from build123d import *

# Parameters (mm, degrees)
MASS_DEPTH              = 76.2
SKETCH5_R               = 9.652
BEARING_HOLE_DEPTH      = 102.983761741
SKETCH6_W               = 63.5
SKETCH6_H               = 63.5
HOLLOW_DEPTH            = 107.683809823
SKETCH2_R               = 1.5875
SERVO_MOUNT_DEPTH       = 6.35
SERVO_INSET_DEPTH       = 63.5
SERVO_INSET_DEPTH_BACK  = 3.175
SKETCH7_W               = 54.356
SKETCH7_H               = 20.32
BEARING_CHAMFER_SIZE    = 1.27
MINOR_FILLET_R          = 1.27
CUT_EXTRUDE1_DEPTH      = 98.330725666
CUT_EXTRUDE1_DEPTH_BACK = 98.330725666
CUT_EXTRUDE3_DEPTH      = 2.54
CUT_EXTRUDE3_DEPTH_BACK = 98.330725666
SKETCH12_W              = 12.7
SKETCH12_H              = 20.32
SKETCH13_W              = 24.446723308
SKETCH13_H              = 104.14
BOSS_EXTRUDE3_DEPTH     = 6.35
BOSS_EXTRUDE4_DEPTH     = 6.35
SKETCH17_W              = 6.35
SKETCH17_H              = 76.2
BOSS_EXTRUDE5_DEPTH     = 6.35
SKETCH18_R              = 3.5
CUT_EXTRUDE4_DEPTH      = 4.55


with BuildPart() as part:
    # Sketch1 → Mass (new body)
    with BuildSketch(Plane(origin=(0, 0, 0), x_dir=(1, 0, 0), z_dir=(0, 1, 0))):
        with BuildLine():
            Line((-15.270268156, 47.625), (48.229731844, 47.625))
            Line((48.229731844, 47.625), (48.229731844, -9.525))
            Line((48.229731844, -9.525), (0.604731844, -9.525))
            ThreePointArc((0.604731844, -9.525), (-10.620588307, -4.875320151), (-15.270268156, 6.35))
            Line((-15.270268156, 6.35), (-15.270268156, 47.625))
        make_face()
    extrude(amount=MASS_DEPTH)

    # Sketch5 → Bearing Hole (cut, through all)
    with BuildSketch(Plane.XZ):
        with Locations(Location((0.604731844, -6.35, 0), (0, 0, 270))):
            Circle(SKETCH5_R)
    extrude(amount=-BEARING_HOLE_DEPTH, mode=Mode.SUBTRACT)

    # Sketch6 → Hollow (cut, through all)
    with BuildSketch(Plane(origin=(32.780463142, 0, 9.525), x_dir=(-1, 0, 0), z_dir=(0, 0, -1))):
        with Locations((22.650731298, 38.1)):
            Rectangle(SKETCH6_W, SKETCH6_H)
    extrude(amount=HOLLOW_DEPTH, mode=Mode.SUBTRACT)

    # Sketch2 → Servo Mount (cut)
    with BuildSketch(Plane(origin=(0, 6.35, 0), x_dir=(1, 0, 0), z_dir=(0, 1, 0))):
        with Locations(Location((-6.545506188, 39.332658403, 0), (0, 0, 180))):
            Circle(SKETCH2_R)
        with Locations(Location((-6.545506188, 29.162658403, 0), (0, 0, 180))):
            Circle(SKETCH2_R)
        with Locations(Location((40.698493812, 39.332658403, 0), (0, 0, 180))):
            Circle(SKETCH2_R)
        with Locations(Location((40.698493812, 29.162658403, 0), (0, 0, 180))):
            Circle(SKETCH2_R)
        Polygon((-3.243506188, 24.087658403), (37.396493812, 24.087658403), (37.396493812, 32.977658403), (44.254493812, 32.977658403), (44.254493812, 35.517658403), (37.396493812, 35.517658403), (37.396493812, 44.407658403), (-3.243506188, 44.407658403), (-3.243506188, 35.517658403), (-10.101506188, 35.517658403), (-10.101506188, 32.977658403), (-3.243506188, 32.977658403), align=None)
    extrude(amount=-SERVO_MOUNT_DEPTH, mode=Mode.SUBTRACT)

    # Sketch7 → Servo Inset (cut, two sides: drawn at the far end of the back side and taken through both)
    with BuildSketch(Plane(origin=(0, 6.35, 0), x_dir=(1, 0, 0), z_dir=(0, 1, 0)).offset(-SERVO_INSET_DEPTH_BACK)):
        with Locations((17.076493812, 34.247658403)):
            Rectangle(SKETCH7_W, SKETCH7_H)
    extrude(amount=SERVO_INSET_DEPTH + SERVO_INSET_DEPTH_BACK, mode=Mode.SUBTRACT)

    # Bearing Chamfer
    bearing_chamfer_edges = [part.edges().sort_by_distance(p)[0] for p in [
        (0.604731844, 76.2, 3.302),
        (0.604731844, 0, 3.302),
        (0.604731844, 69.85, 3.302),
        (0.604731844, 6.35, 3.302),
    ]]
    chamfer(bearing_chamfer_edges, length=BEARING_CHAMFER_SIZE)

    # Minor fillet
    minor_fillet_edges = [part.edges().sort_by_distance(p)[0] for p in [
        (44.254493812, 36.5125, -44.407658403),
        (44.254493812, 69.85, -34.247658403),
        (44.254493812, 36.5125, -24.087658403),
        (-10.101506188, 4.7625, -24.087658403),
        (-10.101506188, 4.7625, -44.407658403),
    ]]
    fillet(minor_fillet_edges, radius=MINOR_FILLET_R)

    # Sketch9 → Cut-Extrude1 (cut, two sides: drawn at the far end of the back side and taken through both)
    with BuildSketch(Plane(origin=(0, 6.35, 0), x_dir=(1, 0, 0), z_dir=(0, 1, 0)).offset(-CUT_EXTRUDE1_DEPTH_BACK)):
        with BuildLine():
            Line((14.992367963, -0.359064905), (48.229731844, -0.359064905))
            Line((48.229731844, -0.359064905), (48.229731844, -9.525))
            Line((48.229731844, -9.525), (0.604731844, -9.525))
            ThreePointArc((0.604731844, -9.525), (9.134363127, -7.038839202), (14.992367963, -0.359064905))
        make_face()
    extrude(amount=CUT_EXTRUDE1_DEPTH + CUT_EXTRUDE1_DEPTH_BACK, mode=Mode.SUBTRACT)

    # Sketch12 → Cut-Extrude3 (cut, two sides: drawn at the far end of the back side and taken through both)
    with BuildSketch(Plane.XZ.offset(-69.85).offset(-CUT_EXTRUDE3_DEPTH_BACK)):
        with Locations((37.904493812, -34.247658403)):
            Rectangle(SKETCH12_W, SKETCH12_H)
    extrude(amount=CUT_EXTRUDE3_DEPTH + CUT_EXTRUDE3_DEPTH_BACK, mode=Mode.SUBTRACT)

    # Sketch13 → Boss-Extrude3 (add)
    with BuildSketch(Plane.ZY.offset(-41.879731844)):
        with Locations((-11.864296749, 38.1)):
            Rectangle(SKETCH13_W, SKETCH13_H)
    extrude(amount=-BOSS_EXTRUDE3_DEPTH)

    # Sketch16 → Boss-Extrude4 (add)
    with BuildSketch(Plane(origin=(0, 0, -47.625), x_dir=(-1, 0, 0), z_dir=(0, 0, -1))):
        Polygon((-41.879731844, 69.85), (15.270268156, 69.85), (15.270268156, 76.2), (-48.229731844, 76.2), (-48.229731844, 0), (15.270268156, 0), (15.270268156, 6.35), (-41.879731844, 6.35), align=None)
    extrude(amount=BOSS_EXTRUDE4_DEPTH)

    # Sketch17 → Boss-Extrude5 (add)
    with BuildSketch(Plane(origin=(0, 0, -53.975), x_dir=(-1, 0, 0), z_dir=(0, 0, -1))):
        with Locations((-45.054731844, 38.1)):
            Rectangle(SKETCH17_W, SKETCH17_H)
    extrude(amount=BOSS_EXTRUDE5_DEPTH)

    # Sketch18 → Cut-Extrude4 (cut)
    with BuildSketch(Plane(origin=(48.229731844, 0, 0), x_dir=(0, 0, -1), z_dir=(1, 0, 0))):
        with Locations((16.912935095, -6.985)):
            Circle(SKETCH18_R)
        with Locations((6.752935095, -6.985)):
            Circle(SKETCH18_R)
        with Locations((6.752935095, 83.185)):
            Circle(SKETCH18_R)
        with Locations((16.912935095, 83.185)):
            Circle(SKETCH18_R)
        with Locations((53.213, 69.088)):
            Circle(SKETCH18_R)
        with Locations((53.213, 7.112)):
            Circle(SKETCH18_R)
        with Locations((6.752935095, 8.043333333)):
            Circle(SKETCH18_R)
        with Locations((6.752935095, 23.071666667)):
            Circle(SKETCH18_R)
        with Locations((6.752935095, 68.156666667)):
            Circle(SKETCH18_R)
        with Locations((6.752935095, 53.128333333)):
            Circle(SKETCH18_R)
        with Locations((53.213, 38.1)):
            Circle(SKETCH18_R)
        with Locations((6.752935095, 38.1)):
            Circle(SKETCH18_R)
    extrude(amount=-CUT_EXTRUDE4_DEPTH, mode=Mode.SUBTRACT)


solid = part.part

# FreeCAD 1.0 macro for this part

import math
import FreeCAD as App
import Part
import Sketcher
from FreeCAD import Vector
Q = App.Units.Quantity


def edges_at(feature, points):
    """Names of the edges that pass closest to the given points."""
    edges = feature.Shape.Edges
    near = lambda p: min(range(len(edges)), key=lambda i: edges[i].distToShape(Part.Vertex(*p))[0])
    return sorted({f"Edge{near(p) + 1}" for p in points})


def add_polygon(sketch, points):
    """Adds a closed chain of lines whose ends are joined by coincident constraints."""
    first, n = sketch.GeometryCount, len(points)
    for a, b in zip(points, points[1:] + points[:1]):
        sketch.addGeometry(Part.LineSegment(App.Vector(*a, 0), App.Vector(*b, 0)), False)
    for i in range(n):
        sketch.addConstraint(Sketcher.Constraint("Coincident", first + i, 2, first + (i + 1) % n, 1))

doc = App.newDocument("Part")
body = doc.addObject("PartDesign::Body", "Body")

# Sketch on XZ plane
sketch1 = body.newObject("Sketcher::SketchObject", "Sketch")
sketch1.AttachmentSupport = (doc.getObject("XZ_Plane"), [""])
sketch1.MapMode = "FlatFace"
sketch1.addGeometry(Part.LineSegment(Vector(48, -48, 0), Vector(-15, -48, 0)), False)
sketch1.addGeometry(Part.LineSegment(Vector(-15, -48, 0), Vector(-15, -6, 0)), False)
sketch1.addGeometry(Part.ArcOfCircle(Part.Circle(Vector(1, -6, 0), Vector(0, 0, 1), 16), math.radians(90), math.radians(180)), False)
sketch1.addGeometry(Part.LineSegment(Vector(1, 10, 0), Vector(48, 10, 0)), False)
sketch1.addGeometry(Part.LineSegment(Vector(48, 10, 0), Vector(48, -48, 0)), False)
sketch1.addConstraint(Sketcher.Constraint("Coincident", 0, 2, 1, 1))
sketch1.addConstraint(Sketcher.Constraint("Tangent", 1, 2, 2, 2))
sketch1.addConstraint(Sketcher.Constraint("Tangent", 2, 1, 3, 1))
sketch1.addConstraint(Sketcher.Constraint("Coincident", 3, 2, 4, 1))
sketch1.addConstraint(Sketcher.Constraint("Coincident", 4, 2, 0, 1))
sketch1.addConstraint(Sketcher.Constraint("Horizontal", 0))
sketch1.addConstraint(Sketcher.Constraint("Vertical", 1))
sketch1.addConstraint(Sketcher.Constraint("Horizontal", 3))
sketch1.addConstraint(Sketcher.Constraint("Vertical", 4))
sketch1.addConstraint(Sketcher.Constraint("DistanceX", 0, 2, 0, 1, Q("2.5 in")))
sketch1.addConstraint(Sketcher.Constraint("Radius", 2, Q("0.625 in")))
sketch1.addConstraint(Sketcher.Constraint("DistanceY", 4, 2, 4, 1, Q("2.25 in")))
sketch1.addConstraint(Sketcher.Constraint("DistanceY", 2, 3, -1, 1, Q("0.25 in")))
sketch1.addConstraint(Sketcher.Constraint("DistanceX", -1, 1, 2, 3, 0.604732))
pad1 = body.newObject("PartDesign::Pad", "Pad")
pad1.Profile = sketch1
pad1.Length = Q("3 in")
pad1.Reversed = True

# Sketch on XZ plane
sketch2 = body.newObject("Sketcher::SketchObject", "Sketch001")
sketch2.AttachmentSupport = (doc.getObject("XZ_Plane"), [""])
sketch2.MapMode = "FlatFace"
sketch2.addGeometry(Part.Circle(Vector(1, -6, 0), Vector(0, 0, 1), 10), False)
sketch2.addConstraint(Sketcher.Constraint("Diameter", 0, Q("0.76 in")))
sketch2.addConstraint(Sketcher.Constraint("DistanceY", 0, 3, -1, 1, Q("0.25 in")))
sketch2.addConstraint(Sketcher.Constraint("DistanceX", -1, 1, 0, 3, 0.604732))
pocket1 = body.newObject("PartDesign::Pocket", "Pocket")
pocket1.Profile = sketch2
pocket1.Type = "ThroughAll"

# Sketch on XY plane
sketch3 = body.newObject("Sketcher::SketchObject", "Sketch002")
sketch3.AttachmentSupport = (doc.getObject("XY_Plane"), [""])
sketch3.MapMode = "FlatFace"
sketch3.AttachmentOffset = App.Placement(Vector(0, 0, 0.375 * 25.4), App.Rotation())
add_polygon(sketch3, [(42, 70), (42, 6), (-22, 6), (-22, 70)])  # lines 0-3
sketch3.addConstraint(Sketcher.Constraint("Vertical", 0))
sketch3.addConstraint(Sketcher.Constraint("Horizontal", 1))
sketch3.addConstraint(Sketcher.Constraint("Vertical", 2))
sketch3.addConstraint(Sketcher.Constraint("Horizontal", 3))
sketch3.addConstraint(Sketcher.Constraint("Equal", 3, 0))
sketch3.addConstraint(Sketcher.Constraint("DistanceX", 1, 2, 1, 1, Q("2.5 in")))
sketch3.addConstraint(Sketcher.Constraint("DistanceY", -1, 1, 0, 2, Q("0.25 in")))
sketch3.addConstraint(Sketcher.Constraint("DistanceX", -1, 1, 0, 2, 41.879732))
pocket2 = body.newObject("PartDesign::Pocket", "Pocket001")
pocket2.Profile = sketch3
pocket2.Type = "ThroughAll"

# Sketch on XZ plane
sketch4 = body.newObject("Sketcher::SketchObject", "Sketch003")
sketch4.AttachmentSupport = (doc.getObject("XZ_Plane"), [""])
sketch4.MapMode = "FlatFace"
sketch4.AttachmentOffset = App.Placement(Vector(0, 0, -0.25 * 25.4), App.Rotation())
sketch4.addGeometry(Part.Circle(Vector(-6.5, -39.3, 0), Vector(0, 0, 1), 1.6), False)  # 0
sketch4.addGeometry(Part.Circle(Vector(-6.5, -29.2, 0), Vector(0, 0, 1), 1.6), False)  # 1
sketch4.addGeometry(Part.Circle(Vector(40.7, -39.3, 0), Vector(0, 0, 1), 1.6), False)  # 2
sketch4.addGeometry(Part.Circle(Vector(40.7, -29.2, 0), Vector(0, 0, 1), 1.6), False)  # 3
add_polygon(sketch4, [(-3.2, -24.1), (37.4, -24.1), (37.4, -33), (44.3, -33), (44.3, -35.5), (37.4, -35.5), (37.4, -44.4), (-3.2, -44.4), (-3.2, -35.5), (-10.1, -35.5), (-10.1, -33), (-3.2, -33)])  # lines 4-15
sketch4.addConstraint(Sketcher.Constraint("Horizontal", 4))
sketch4.addConstraint(Sketcher.Constraint("Vertical", 5))
sketch4.addConstraint(Sketcher.Constraint("Horizontal", 6))
sketch4.addConstraint(Sketcher.Constraint("Vertical", 7))
sketch4.addConstraint(Sketcher.Constraint("Horizontal", 8))
sketch4.addConstraint(Sketcher.Constraint("Vertical", 9))
sketch4.addConstraint(Sketcher.Constraint("Horizontal", 10))
sketch4.addConstraint(Sketcher.Constraint("Vertical", 11))
sketch4.addConstraint(Sketcher.Constraint("Horizontal", 12))
sketch4.addConstraint(Sketcher.Constraint("Vertical", 13))
sketch4.addConstraint(Sketcher.Constraint("Horizontal", 14))
sketch4.addConstraint(Sketcher.Constraint("Vertical", 15))
sketch4.addConstraint(Sketcher.Constraint("Equal", 0, 1))
sketch4.addConstraint(Sketcher.Constraint("Equal", 1, 2))
sketch4.addConstraint(Sketcher.Constraint("Equal", 2, 3))
sketch4.addConstraint(Sketcher.Constraint("Horizontal", 0, 3, 2, 3))
sketch4.addConstraint(Sketcher.Constraint("Horizontal", 1, 3, 3, 3))
sketch4.addConstraint(Sketcher.Constraint("Horizontal", 8, 2, 11, 2))
sketch4.addConstraint(Sketcher.Constraint("Horizontal", 6, 2, 13, 2))
sketch4.addConstraint(Sketcher.Constraint("Vertical", 0, 3, 1, 3))
sketch4.addConstraint(Sketcher.Constraint("Vertical", 2, 3, 3, 3))
sketch4.addConstraint(Sketcher.Constraint("Vertical", 5, 2, 8, 2))
sketch4.addConstraint(Sketcher.Constraint("Vertical", 11, 2, 14, 2))
sketch4.addConstraint(Sketcher.Constraint("Equal", 8, 12))
sketch4.addConstraint(Sketcher.Constraint("Equal", 5, 9))
sketch4.addConstraint(Sketcher.Constraint("Diameter", 0, Q("0.125 in")))
sketch4.addConstraint(Sketcher.Constraint("DistanceX", 4, 1, 4, 2, Q("1.6 in")))
sketch4.addConstraint(Sketcher.Constraint("DistanceY", 7, 2, 7, 1, Q("0.1 in")))
sketch4.addConstraint(Sketcher.Constraint("DistanceX", 1, 3, 6, 2, Q("2 in")))
sketch4.addConstraint(Sketcher.Constraint("DistanceX", 6, 1, 6, 2, Q("0.27 in")))
sketch4.addConstraint(Sketcher.Constraint("DistanceY", 5, 2, 5, 1, Q("0.35 in")))
sketch4.addConstraint(Sketcher.Constraint("DistanceX", 0, 3, 2, 3, Q("1.86 in")))
sketch4.addConstraint(Sketcher.Constraint("DistanceY", 0, 3, 1, 3, 10.17))
sketch4.addConstraint(Sketcher.Constraint("DistanceY", 3, 3, 4, 2, 5.075))
sketch4.addConstraint(Sketcher.Constraint("DistanceY", 0, 3, -1, 1, 39.332658))
sketch4.addConstraint(Sketcher.Constraint("DistanceX", 0, 3, -1, 1, 6.545506))
pocket3 = body.newObject("PartDesign::Pocket", "Pocket002")
pocket3.Profile = sketch4
pocket3.Length = Q("0.25 in")
pocket3.Reversed = True

# Sketch on XZ plane
sketch5 = body.newObject("Sketcher::SketchObject", "Sketch004")
sketch5.AttachmentSupport = (doc.getObject("XZ_Plane"), [""])
sketch5.MapMode = "FlatFace"
sketch5.AttachmentOffset = App.Placement(Vector(0, 0, -0.25 * 25.4), App.Rotation())
add_polygon(sketch5, [(-10, -44), (-10, -24), (44, -24), (44, -44)])  # lines 0-3
sketch5.addConstraint(Sketcher.Constraint("Vertical", 0))
sketch5.addConstraint(Sketcher.Constraint("Horizontal", 1))
sketch5.addConstraint(Sketcher.Constraint("Vertical", 2))
sketch5.addConstraint(Sketcher.Constraint("Horizontal", 3))
sketch5.addConstraint(Sketcher.Constraint("DistanceY", 0, 1, 0, 2, Q("0.8 in")))
sketch5.addConstraint(Sketcher.Constraint("DistanceX", 1, 1, 1, 2, Q("2.14 in")))
sketch5.addConstraint(Sketcher.Constraint("DistanceY", 0, 2, -1, 1, 24.087658))
sketch5.addConstraint(Sketcher.Constraint("DistanceX", 0, 2, -1, 1, 10.101506))
pocket4 = body.newObject("PartDesign::Pocket", "Pocket003")
pocket4.Profile = sketch5
pocket4.Type = "TwoLengths"
pocket4.Length = Q("2.5 in")
pocket4.Length2 = Q("0.125 in")
doc.recompute()

chamfer = body.newObject("PartDesign::Chamfer", "Chamfer")
chamfer.Base = (pocket4, edges_at(pocket4, [
    (0.605, 76.2, 3.302),
    (0.605, 0, 3.302),
    (0.605, 69.85, 3.302),
    (0.605, 6.35, 3.302),
]))
chamfer.Size = Q("0.05 in")
doc.recompute()

fillet = body.newObject("PartDesign::Fillet", "Fillet")
fillet.Base = (chamfer, edges_at(chamfer, [
    (44.254, 36.513, -44.408),
    (44.254, 69.85, -34.248),
    (44.254, 36.513, -24.088),
    (-10.102, 4.763, -24.088),
    (-10.102, 4.763, -44.408),
]))
fillet.Radius = Q("0.05 in")

# Sketch on XZ plane
sketch6 = body.newObject("Sketcher::SketchObject", "Sketch005")
sketch6.AttachmentSupport = (doc.getObject("XZ_Plane"), [""])
sketch6.MapMode = "FlatFace"
sketch6.AttachmentOffset = App.Placement(Vector(0, 0, -0.25 * 25.4), App.Rotation())
sketch6.addGeometry(Part.LineSegment(Vector(48, 0, 0), Vector(15, 0, 0)), False)
sketch6.addGeometry(Part.ArcOfCircle(Part.Circle(Vector(1, -6, 0), Vector(0, 0, 1), 16), math.radians(25), math.radians(90)), False)
sketch6.addGeometry(Part.LineSegment(Vector(1, 10, 0), Vector(48, 10, 0)), False)
sketch6.addGeometry(Part.LineSegment(Vector(48, 10, 0), Vector(48, 0, 0)), False)
sketch6.addConstraint(Sketcher.Constraint("Coincident", 0, 2, 1, 1))
sketch6.addConstraint(Sketcher.Constraint("Tangent", 1, 2, 2, 1))
sketch6.addConstraint(Sketcher.Constraint("Coincident", 2, 2, 3, 1))
sketch6.addConstraint(Sketcher.Constraint("Coincident", 3, 2, 0, 1))
sketch6.addConstraint(Sketcher.Constraint("Horizontal", 0))
sketch6.addConstraint(Sketcher.Constraint("Horizontal", 2))
sketch6.addConstraint(Sketcher.Constraint("Vertical", 3))
sketch6.addConstraint(Sketcher.Constraint("Radius", 1, Q("0.625 in")))
sketch6.addConstraint(Sketcher.Constraint("DistanceX", 2, 1, 2, 2, Q("1.875 in")))
sketch6.addConstraint(Sketcher.Constraint("DistanceY", 1, 3, -1, 1, Q("0.25 in")))
sketch6.addConstraint(Sketcher.Constraint("DistanceX", 0, 2, 0, 1, 33.237364))
sketch6.addConstraint(Sketcher.Constraint("DistanceX", -1, 1, 1, 3, 0.604732))
pocket5 = body.newObject("PartDesign::Pocket", "Pocket004")
pocket5.Profile = sketch6
pocket5.Type = "ThroughAll"
pocket5.Midplane = True

# Sketch on XZ plane
sketch7 = body.newObject("Sketcher::SketchObject", "Sketch006")
sketch7.AttachmentSupport = (doc.getObject("XZ_Plane"), [""])
sketch7.MapMode = "FlatFace"
sketch7.AttachmentOffset = App.Placement(Vector(0, 0, -2.75 * 25.4), App.Rotation())
add_polygon(sketch7, [(32, -24), (32, -44), (44, -44), (44, -24)])  # lines 0-3
sketch7.addConstraint(Sketcher.Constraint("Vertical", 0))
sketch7.addConstraint(Sketcher.Constraint("Horizontal", 1))
sketch7.addConstraint(Sketcher.Constraint("Vertical", 2))
sketch7.addConstraint(Sketcher.Constraint("Horizontal", 3))
sketch7.addConstraint(Sketcher.Constraint("DistanceX", 1, 1, 1, 2, Q("0.5 in")))
sketch7.addConstraint(Sketcher.Constraint("DistanceY", 0, 2, 0, 1, Q("0.8 in")))
sketch7.addConstraint(Sketcher.Constraint("DistanceY", 0, 2, -1, 1, 44.407658))
sketch7.addConstraint(Sketcher.Constraint("DistanceX", -1, 1, 0, 2, 31.554494))
pocket6 = body.newObject("PartDesign::Pocket", "Pocket005")
pocket6.Profile = sketch7
pocket6.Type = "TwoLengths"
pocket6.Length = Q("0.1 in")
pocket6.Length2 = 98.330726
pocket6.Reversed = True

# Sketch on YZ plane
sketch8 = body.newObject("Sketcher::SketchObject", "Sketch007")
sketch8.AttachmentSupport = (doc.getObject("YZ_Plane"), [""])
sketch8.MapMode = "FlatFace"
sketch8.AttachmentOffset = App.Placement(Vector(0, 0, 41.879732), App.Rotation())
add_polygon(sketch8, [(90, -24), (-14, -24), (-14, 0), (90, 0)])  # lines 0-3
sketch8.addConstraint(Sketcher.Constraint("Horizontal", 0))
sketch8.addConstraint(Sketcher.Constraint("Vertical", 1))
sketch8.addConstraint(Sketcher.Constraint("Horizontal", 2))
sketch8.addConstraint(Sketcher.Constraint("Vertical", 3))
sketch8.addConstraint(Sketcher.Constraint("DistanceX", 0, 2, 0, 1, Q("4.1 in")))
sketch8.addConstraint(Sketcher.Constraint("DistanceX", 0, 2, -1, 1, Q("0.55 in")))
sketch8.addConstraint(Sketcher.Constraint("DistanceY", 1, 1, 1, 2, 24.446723))
sketch8.addConstraint(Sketcher.Constraint("DistanceY", 0, 2, -1, 1, 24.087658))
pad2 = body.newObject("PartDesign::Pad", "Pad001")
pad2.Profile = sketch8
pad2.Length = Q("0.25 in")

# Sketch on XY plane
sketch9 = body.newObject("Sketcher::SketchObject", "Sketch008")
sketch9.AttachmentSupport = (doc.getObject("XY_Plane"), [""])
sketch9.MapMode = "FlatFace"
sketch9.AttachmentOffset = App.Placement(Vector(0, 0, -1.875 * 25.4), App.Rotation())
add_polygon(sketch9, [(42, 70), (-15, 70), (-15, 76), (48, 76), (48, 0), (-15, 0), (-15, 6), (42, 6)])  # lines 0-7
sketch9.addConstraint(Sketcher.Constraint("Horizontal", 0))
sketch9.addConstraint(Sketcher.Constraint("Vertical", 1))
sketch9.addConstraint(Sketcher.Constraint("Horizontal", 2))
sketch9.addConstraint(Sketcher.Constraint("Vertical", 3))
sketch9.addConstraint(Sketcher.Constraint("Horizontal", 4))
sketch9.addConstraint(Sketcher.Constraint("Vertical", 5))
sketch9.addConstraint(Sketcher.Constraint("Horizontal", 6))
sketch9.addConstraint(Sketcher.Constraint("Vertical", 7))
sketch9.addConstraint(Sketcher.Constraint("PointOnObject", 3, 2, -1))
sketch9.addConstraint(Sketcher.Constraint("Vertical", 1, 2, 4, 2))
sketch9.addConstraint(Sketcher.Constraint("Equal", 1, 5))
sketch9.addConstraint(Sketcher.Constraint("Equal", 4, 7))
sketch9.addConstraint(Sketcher.Constraint("DistanceY", 3, 2, 3, 1, Q("3 in")))
sketch9.addConstraint(Sketcher.Constraint("DistanceX", 2, 1, 2, 2, Q("2.5 in")))
sketch9.addConstraint(Sketcher.Constraint("DistanceX", 0, 2, 0, 1, Q("2.25 in")))
sketch9.addConstraint(Sketcher.Constraint("DistanceX", 0, 2, -1, 1, 15.270268))
pad3 = body.newObject("PartDesign::Pad", "Pad002")
pad3.Profile = sketch9
pad3.Length = Q("0.25 in")
pad3.Reversed = True

# Sketch on XY plane
sketch10 = body.newObject("Sketcher::SketchObject", "Sketch009")
sketch10.AttachmentSupport = (doc.getObject("XY_Plane"), [""])
sketch10.MapMode = "FlatFace"
sketch10.AttachmentOffset = App.Placement(Vector(0, 0, -2.125 * 25.4), App.Rotation())
add_polygon(sketch10, [(48, 76), (48, 0), (42, 0), (42, 76)])  # lines 0-3
sketch10.addConstraint(Sketcher.Constraint("Vertical", 0))
sketch10.addConstraint(Sketcher.Constraint("Horizontal", 1))
sketch10.addConstraint(Sketcher.Constraint("Vertical", 2))
sketch10.addConstraint(Sketcher.Constraint("Horizontal", 3))
sketch10.addConstraint(Sketcher.Constraint("PointOnObject", 0, 2, -1))
sketch10.addConstraint(Sketcher.Constraint("DistanceY", 0, 2, 0, 1, Q("3 in")))
sketch10.addConstraint(Sketcher.Constraint("DistanceX", 1, 2, 1, 1, Q("0.25 in")))
sketch10.addConstraint(Sketcher.Constraint("DistanceX", -1, 1, 0, 2, 48.229732))
pad4 = body.newObject("PartDesign::Pad", "Pad003")
pad4.Profile = sketch10
pad4.Length = Q("0.25 in")
pad4.Reversed = True

# Sketch on YZ plane
sketch11 = body.newObject("Sketcher::SketchObject", "Sketch010")
sketch11.AttachmentSupport = (doc.getObject("YZ_Plane"), [""])
sketch11.MapMode = "FlatFace"
sketch11.AttachmentOffset = App.Placement(Vector(0, 0, 48.229732), App.Rotation())
sketch11.addGeometry(Part.Circle(Vector(-7, -16.9, 0), Vector(0, 0, 1), 3.5), False)
sketch11.addGeometry(Part.Circle(Vector(-7, -6.8, 0), Vector(0, 0, 1), 3.5), False)
sketch11.addGeometry(Part.Circle(Vector(83.2, -6.8, 0), Vector(0, 0, 1), 3.5), False)
sketch11.addGeometry(Part.Circle(Vector(83.2, -16.9, 0), Vector(0, 0, 1), 3.5), False)
sketch11.addGeometry(Part.Circle(Vector(69.1, -53.2, 0), Vector(0, 0, 1), 3.5), False)
sketch11.addGeometry(Part.Circle(Vector(7.1, -53.2, 0), Vector(0, 0, 1), 3.5), False)
sketch11.addGeometry(Part.Circle(Vector(8, -6.8, 0), Vector(0, 0, 1), 3.5), False)
sketch11.addGeometry(Part.Circle(Vector(23.1, -6.8, 0), Vector(0, 0, 1), 3.5), False)
sketch11.addGeometry(Part.Circle(Vector(68.2, -6.8, 0), Vector(0, 0, 1), 3.5), False)
sketch11.addGeometry(Part.Circle(Vector(53.1, -6.8, 0), Vector(0, 0, 1), 3.5), False)
sketch11.addGeometry(Part.Circle(Vector(38.1, -53.2, 0), Vector(0, 0, 1), 3.5), False)
sketch11.addGeometry(Part.Circle(Vector(38.1, -6.8, 0), Vector(0, 0, 1), 3.5), False)
sketch11.addConstraint(Sketcher.Constraint("Equal", 0, 1))
sketch11.addConstraint(Sketcher.Constraint("Equal", 1, 2))
sketch11.addConstraint(Sketcher.Constraint("Equal", 2, 3))
sketch11.addConstraint(Sketcher.Constraint("Equal", 3, 4))
sketch11.addConstraint(Sketcher.Constraint("Equal", 4, 5))
sketch11.addConstraint(Sketcher.Constraint("Equal", 5, 6))
sketch11.addConstraint(Sketcher.Constraint("Equal", 6, 7))
sketch11.addConstraint(Sketcher.Constraint("Equal", 7, 8))
sketch11.addConstraint(Sketcher.Constraint("Equal", 8, 9))
sketch11.addConstraint(Sketcher.Constraint("Equal", 9, 10))
sketch11.addConstraint(Sketcher.Constraint("Equal", 10, 11))
sketch11.addConstraint(Sketcher.Constraint("Horizontal", 1, 3, 2, 3))
sketch11.addConstraint(Sketcher.Constraint("Horizontal", 0, 3, 3, 3))
sketch11.addConstraint(Sketcher.Constraint("Horizontal", 4, 3, 5, 3))
sketch11.addConstraint(Sketcher.Constraint("Horizontal", 2, 3, 6, 3))
sketch11.addConstraint(Sketcher.Constraint("Horizontal", 6, 3, 7, 3))
sketch11.addConstraint(Sketcher.Constraint("Horizontal", 7, 3, 8, 3))
sketch11.addConstraint(Sketcher.Constraint("Horizontal", 8, 3, 9, 3))
sketch11.addConstraint(Sketcher.Constraint("Horizontal", 5, 3, 10, 3))
sketch11.addConstraint(Sketcher.Constraint("Horizontal", 9, 3, 11, 3))
sketch11.addConstraint(Sketcher.Constraint("Vertical", 0, 3, 1, 3))
sketch11.addConstraint(Sketcher.Constraint("Vertical", 2, 3, 3, 3))
sketch11.addConstraint(Sketcher.Constraint("Vertical", 10, 3, 11, 3))
sketch11.addConstraint(Sketcher.Constraint("DistanceX", -1, 1, 10, 3, Q("1.5 in")))
sketch11.addConstraint(Sketcher.Constraint("DistanceY", 0, 3, 1, 3, Q("0.4 in")))
sketch11.addConstraint(Sketcher.Constraint("Diameter", 0, 7.0))
sketch11.addConstraint(Sketcher.Constraint("DistanceX", -1, 1, 4, 3, Q("2.72 in")))
sketch11.addConstraint(Sketcher.Constraint("DistanceX", -1, 1, 5, 3, Q("0.28 in")))
sketch11.addConstraint(Sketcher.Constraint("DistanceX", 1, 3, 2, 3, Q("3.55 in")))
sketch11.addConstraint(Sketcher.Constraint("DistanceX", 0, 3, -1, 1, Q("0.275 in")))
sketch11.addConstraint(Sketcher.Constraint("DistanceY", 4, 3, -1, 1, Q("2.095 in")))
sketch11.addConstraint(Sketcher.Constraint("DistanceX", 7, 3, 8, 3, Q("1.775 in")))
sketch11.addConstraint(Sketcher.Constraint("DistanceX", 6, 3, 9, 3, Q("1.775 in")))
sketch11.addConstraint(Sketcher.Constraint("DistanceY", 0, 3, -1, 1, 16.912935))
sketch11.addConstraint(Sketcher.Constraint("DistanceX", -1, 1, 6, 3, 8.043333))
sketch11.addConstraint(Sketcher.Constraint("DistanceX", -1, 1, 7, 3, 23.071667))
pocket7 = body.newObject("PartDesign::Pocket", "Pocket006")
pocket7.Profile = sketch11
pocket7.Length = 4.55

doc.recompute()
